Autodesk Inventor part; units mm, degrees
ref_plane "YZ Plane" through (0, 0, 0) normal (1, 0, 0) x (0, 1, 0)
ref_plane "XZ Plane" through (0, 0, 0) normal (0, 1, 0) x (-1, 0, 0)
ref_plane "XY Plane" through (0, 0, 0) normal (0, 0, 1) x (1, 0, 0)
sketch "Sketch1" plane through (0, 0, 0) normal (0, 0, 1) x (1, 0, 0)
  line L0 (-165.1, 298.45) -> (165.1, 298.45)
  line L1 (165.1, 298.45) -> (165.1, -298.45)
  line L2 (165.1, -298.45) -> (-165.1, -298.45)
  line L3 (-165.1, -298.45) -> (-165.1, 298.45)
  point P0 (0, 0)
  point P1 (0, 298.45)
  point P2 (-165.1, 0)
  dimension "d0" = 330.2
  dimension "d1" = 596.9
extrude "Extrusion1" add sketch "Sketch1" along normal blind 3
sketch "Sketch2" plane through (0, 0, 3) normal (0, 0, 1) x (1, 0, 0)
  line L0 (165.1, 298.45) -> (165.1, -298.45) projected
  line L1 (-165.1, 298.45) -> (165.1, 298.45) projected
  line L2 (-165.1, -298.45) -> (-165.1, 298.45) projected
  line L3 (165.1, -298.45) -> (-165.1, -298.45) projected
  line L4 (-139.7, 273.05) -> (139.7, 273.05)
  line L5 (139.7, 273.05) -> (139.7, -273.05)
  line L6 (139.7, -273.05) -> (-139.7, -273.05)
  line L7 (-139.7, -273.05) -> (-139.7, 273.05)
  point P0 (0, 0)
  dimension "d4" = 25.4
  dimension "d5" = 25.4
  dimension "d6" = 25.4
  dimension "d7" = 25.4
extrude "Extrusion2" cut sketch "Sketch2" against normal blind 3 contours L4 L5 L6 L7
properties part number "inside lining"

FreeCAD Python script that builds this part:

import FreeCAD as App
import Part
import Sketcher
Q = App.Units.Quantity


def add_polygon(sketch, points):
    """Adds a closed chain of lines whose ends are joined by coincident constraints."""
    first, n = sketch.GeometryCount, len(points)
    for a, b in zip(points, points[1:] + points[:1]):
        sketch.addGeometry(Part.LineSegment(App.Vector(*a, 0), App.Vector(*b, 0)), False)
    for i in range(n):
        sketch.addConstraint(Sketcher.Constraint("Coincident", first + i, 2, first + (i + 1) % n, 1))

doc = App.newDocument("Part")
params = doc.addObject("Spreadsheet::Sheet", "Params")
for row, (alias, value) in enumerate([
    ("sketch1_width", "13 in"),
    ("sketch1_height", "23.5 in"),
    ("pad1_length", "0.1181102 in"),
    ("sketch2_width", "11 in"),
    ("sketch2_height", "21.5 in"),
    ("pocket1_length", "0.1181102 in"),
], start=1):
    params.set(f"A{row}", alias)
    params.set(f"B{row}", "=" + value)
    params.setAlias(f"B{row}", alias)

body = doc.addObject("PartDesign::Body", "Body")

sketch1 = doc.addObject("Sketcher::SketchObject", "Sketch")
body.addObject(sketch1)
sketch1.AttachmentSupport = (doc.XY_Plane, [""])
sketch1.MapMode = "FlatFace"
add_polygon(sketch1, [(165, 298), (-165, 298), (-165, -298), (165, -298)])
sketch1.addConstraint(Sketcher.Constraint("Horizontal", 0))
sketch1.addConstraint(Sketcher.Constraint("Vertical", 1))
sketch1.addConstraint(Sketcher.Constraint("Horizontal", 2))
sketch1.addConstraint(Sketcher.Constraint("Vertical", 3))
sketch1.addConstraint(Sketcher.Constraint("Symmetric", 0, 2, 2, 2, -1, 1))
sketch1.addConstraint(Sketcher.Constraint("DistanceX", 0, 2, 0, 1, Q("13 in")))
sketch1.addConstraint(Sketcher.Constraint("DistanceY", 1, 2, 1, 1, Q("23.5 in")))
sketch1.setExpression("Constraints[9]", "Params.sketch1_width")
sketch1.setExpression("Constraints[10]", "Params.sketch1_height")
pad1 = doc.addObject("PartDesign::Pad", "Pad")
body.addObject(pad1)
pad1.Profile = sketch1
pad1.setExpression("Length", "Params.pad1_length")

sketch2 = doc.addObject("Sketcher::SketchObject", "Sketch001")
body.addObject(sketch2)
sketch2.AttachmentSupport = (doc.XY_Plane, [""])
sketch2.MapMode = "FlatFace"
sketch2.AttachmentOffset = App.Placement(App.Vector(0, 0, 0.1181102 * 25.4), App.Rotation())
add_polygon(sketch2, [(140, 273), (-140, 273), (-140, -273), (140, -273)])
sketch2.addConstraint(Sketcher.Constraint("Horizontal", 0))
sketch2.addConstraint(Sketcher.Constraint("Vertical", 1))
sketch2.addConstraint(Sketcher.Constraint("Horizontal", 2))
sketch2.addConstraint(Sketcher.Constraint("Vertical", 3))
sketch2.addConstraint(Sketcher.Constraint("Symmetric", 0, 2, 2, 2, -1, 1))
sketch2.addConstraint(Sketcher.Constraint("DistanceX", 0, 2, 0, 1, Q("11 in")))
sketch2.addConstraint(Sketcher.Constraint("DistanceY", 1, 2, 1, 1, Q("21.5 in")))
sketch2.setExpression("Constraints[9]", "Params.sketch2_width")
sketch2.setExpression("Constraints[10]", "Params.sketch2_height")
pocket1 = doc.addObject("PartDesign::Pocket", "Pocket")
body.addObject(pocket1)
pocket1.Profile = sketch2
pocket1.setExpression("Length", "Params.pocket1_length")

doc.recompute()
